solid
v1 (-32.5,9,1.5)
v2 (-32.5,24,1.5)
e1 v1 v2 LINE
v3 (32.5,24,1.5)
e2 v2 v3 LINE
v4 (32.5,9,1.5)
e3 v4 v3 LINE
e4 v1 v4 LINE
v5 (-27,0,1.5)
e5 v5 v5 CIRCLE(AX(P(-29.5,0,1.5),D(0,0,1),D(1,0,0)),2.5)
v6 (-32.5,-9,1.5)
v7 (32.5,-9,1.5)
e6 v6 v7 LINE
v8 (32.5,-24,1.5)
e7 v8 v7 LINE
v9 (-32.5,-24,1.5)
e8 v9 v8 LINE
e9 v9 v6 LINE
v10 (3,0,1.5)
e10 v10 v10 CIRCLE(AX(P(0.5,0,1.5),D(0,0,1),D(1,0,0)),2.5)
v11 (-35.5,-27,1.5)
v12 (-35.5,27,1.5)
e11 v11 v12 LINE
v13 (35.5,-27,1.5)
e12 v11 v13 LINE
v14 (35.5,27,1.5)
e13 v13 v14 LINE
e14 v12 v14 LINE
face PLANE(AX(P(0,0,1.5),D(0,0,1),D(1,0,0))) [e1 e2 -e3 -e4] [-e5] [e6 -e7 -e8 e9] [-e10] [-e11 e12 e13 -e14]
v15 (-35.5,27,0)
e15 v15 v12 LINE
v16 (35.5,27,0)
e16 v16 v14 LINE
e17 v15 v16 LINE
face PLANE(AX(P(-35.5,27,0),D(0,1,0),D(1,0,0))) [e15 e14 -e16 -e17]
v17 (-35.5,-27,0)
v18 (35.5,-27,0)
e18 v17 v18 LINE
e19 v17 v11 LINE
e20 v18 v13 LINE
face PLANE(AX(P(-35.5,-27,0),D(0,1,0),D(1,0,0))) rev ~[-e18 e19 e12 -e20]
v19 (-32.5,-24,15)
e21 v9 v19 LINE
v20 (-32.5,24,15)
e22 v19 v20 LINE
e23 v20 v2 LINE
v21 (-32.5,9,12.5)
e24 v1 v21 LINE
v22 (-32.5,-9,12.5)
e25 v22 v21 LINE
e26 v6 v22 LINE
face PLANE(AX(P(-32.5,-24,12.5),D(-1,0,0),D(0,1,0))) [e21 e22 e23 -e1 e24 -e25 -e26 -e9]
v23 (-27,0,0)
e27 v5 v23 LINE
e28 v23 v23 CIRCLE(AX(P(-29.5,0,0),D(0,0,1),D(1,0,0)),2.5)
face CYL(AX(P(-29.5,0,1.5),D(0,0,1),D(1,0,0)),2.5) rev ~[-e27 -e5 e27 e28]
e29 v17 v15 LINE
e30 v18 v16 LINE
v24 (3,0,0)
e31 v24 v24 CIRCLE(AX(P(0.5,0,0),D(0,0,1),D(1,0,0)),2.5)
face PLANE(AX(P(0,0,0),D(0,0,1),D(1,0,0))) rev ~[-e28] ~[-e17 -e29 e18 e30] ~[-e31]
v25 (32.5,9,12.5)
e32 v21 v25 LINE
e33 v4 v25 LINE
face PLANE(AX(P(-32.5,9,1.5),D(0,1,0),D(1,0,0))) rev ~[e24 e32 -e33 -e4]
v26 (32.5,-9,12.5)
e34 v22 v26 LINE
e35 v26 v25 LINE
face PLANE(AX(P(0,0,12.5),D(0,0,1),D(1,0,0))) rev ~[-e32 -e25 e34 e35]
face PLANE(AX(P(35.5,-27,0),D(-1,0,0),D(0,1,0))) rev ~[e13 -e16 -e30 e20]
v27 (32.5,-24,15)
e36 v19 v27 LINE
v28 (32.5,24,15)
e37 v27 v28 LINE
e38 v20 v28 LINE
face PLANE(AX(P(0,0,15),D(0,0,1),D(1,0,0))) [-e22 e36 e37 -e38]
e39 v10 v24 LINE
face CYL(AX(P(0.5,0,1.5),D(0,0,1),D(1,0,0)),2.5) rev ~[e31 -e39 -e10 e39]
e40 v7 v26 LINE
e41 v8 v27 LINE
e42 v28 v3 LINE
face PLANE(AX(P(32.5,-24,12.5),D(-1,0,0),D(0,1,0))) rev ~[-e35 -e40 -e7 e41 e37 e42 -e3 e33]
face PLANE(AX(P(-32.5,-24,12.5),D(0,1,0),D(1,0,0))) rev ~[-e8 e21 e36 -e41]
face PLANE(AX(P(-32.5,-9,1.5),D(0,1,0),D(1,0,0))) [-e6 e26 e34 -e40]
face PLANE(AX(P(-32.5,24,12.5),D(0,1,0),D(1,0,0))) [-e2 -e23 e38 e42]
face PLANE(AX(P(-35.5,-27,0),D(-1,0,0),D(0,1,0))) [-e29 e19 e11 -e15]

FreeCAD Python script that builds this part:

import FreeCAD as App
import Part
import Sketcher
from FreeCAD import Vector
Q = App.Units.Quantity


def add_polygon(sketch, points):
    """Adds a closed chain of lines whose ends are joined by coincident constraints."""
    first, n = sketch.GeometryCount, len(points)
    for a, b in zip(points, points[1:] + points[:1]):
        sketch.addGeometry(Part.LineSegment(App.Vector(*a, 0), App.Vector(*b, 0)), False)
    for i in range(n):
        sketch.addConstraint(Sketcher.Constraint("Coincident", first + i, 2, first + (i + 1) % n, 1))

doc = App.newDocument("Part")
body = doc.addObject("PartDesign::Body", "Body")

sketch1 = body.newObject("Sketcher::SketchObject", "Sketch")
sketch1.AttachmentSupport = (doc.getObject("XY_Plane"), [""])
sketch1.MapMode = "FlatFace"
add_polygon(sketch1, [(-35.5, 27), (-35.5, -27), (35.5, -27), (35.5, 27)])
sketch1.addConstraint([
    Sketcher.Constraint("Vertical", 0),
    Sketcher.Constraint("Horizontal", 1),
    Sketcher.Constraint("Vertical", 2),
    Sketcher.Constraint("Horizontal", 3),
    Sketcher.Constraint("Symmetric", 0, 2, 2, 2, -1, 1),
    Sketcher.Constraint("DistanceX", 1, 1, 1, 2, Q("71 mm")),
    Sketcher.Constraint("DistanceY", 0, 2, 0, 1, Q("54 mm")),
])
pad1 = body.newObject("PartDesign::Pad", "Pad")
pad1.Profile = sketch1
pad1.Length = 1.5

sketch2 = body.newObject("Sketcher::SketchObject", "Sketch001")
sketch2.AttachmentSupport = (doc.getObject("XY_Plane"), [""])
sketch2.MapMode = "FlatFace"
sketch2.AttachmentOffset = App.Placement(Vector(0, 0, 1.5), App.Rotation())
sketch2.addGeometry([
    Part.Circle(Vector(-29.5, 0, 0), Vector(0, 0, 1), 2.5),
    Part.Circle(Vector(0.5, 0, 0), Vector(0, 0, 1), 2.5),
], False)
sketch2.addConstraint([
    Sketcher.Constraint("Equal", 0, 1),
    Sketcher.Constraint("PointOnObject", 0, 3, -1),
    Sketcher.Constraint("PointOnObject", 1, 3, -1),
    Sketcher.Constraint("Diameter", 0, Q("5 mm")),
    Sketcher.Constraint("DistanceX", 0, 3, 1, 3, Q("30 mm")),
    Sketcher.Constraint("DistanceX", 0, 3, -1, 1, Q("29.5 mm")),
])
pocket1 = body.newObject("PartDesign::Pocket", "Pocket")
pocket1.Profile = sketch2
pocket1.Length = 25

sketch3 = body.newObject("Sketcher::SketchObject", "Sketch002")
sketch3.AttachmentSupport = (doc.getObject("XY_Plane"), [""])
sketch3.MapMode = "FlatFace"
sketch3.AttachmentOffset = App.Placement(Vector(0, 0, 1.5), App.Rotation())
add_polygon(sketch3, [(-32.5, 24), (-32.5, 9), (32.5, 9), (32.5, 24)])
add_polygon(sketch3, [(-32.5, -9), (-32.5, -24), (32.5, -24), (32.5, -9)])
sketch3.addConstraint([
    Sketcher.Constraint("Vertical", 0),
    Sketcher.Constraint("Horizontal", 1),
    Sketcher.Constraint("Vertical", 2),
    Sketcher.Constraint("Horizontal", 3),
    Sketcher.Constraint("Vertical", 4),
    Sketcher.Constraint("Horizontal", 5),
    Sketcher.Constraint("Vertical", 6),
    Sketcher.Constraint("Horizontal", 7),
    Sketcher.Constraint("Symmetric", 2, 2, 4, 2, -1, 1),
    Sketcher.Constraint("Symmetric", 0, 2, 6, 2, -1, 1),
    Sketcher.Constraint("Vertical", 3, 2, 4, 2),
    Sketcher.Constraint("DistanceX", 1, 1, 1, 2, Q("65 mm")),
    Sketcher.Constraint("DistanceY", 0, 2, 0, 1, Q("15 mm")),
    Sketcher.Constraint("DistanceY", -1, 1, 0, 2, Q("9 mm")),
])
pad2 = body.newObject("PartDesign::Pad", "Pad001")
pad2.Profile = sketch3
pad2.Length = 11

sketch4 = body.newObject("Sketcher::SketchObject", "Sketch003")
sketch4.AttachmentSupport = (doc.getObject("XY_Plane"), [""])
sketch4.MapMode = "FlatFace"
sketch4.AttachmentOffset = App.Placement(Vector(0, 0, 12.5), App.Rotation())
add_polygon(sketch4, [(-32.5, 24), (-32.5, -24), (32.5, -24), (32.5, 24)])
sketch4.addConstraint([
    Sketcher.Constraint("Vertical", 0),
    Sketcher.Constraint("Horizontal", 1),
    Sketcher.Constraint("Vertical", 2),
    Sketcher.Constraint("Horizontal", 3),
    Sketcher.Constraint("Symmetric", 0, 2, 2, 2, -1, 1),
    Sketcher.Constraint("DistanceX", 1, 1, 1, 2, Q("65 mm")),
    Sketcher.Constraint("DistanceY", 0, 2, 0, 1, Q("48 mm")),
])
pad3 = body.newObject("PartDesign::Pad", "Pad002")
pad3.Profile = sketch4
pad3.Length = 2.5

doc.recompute()
